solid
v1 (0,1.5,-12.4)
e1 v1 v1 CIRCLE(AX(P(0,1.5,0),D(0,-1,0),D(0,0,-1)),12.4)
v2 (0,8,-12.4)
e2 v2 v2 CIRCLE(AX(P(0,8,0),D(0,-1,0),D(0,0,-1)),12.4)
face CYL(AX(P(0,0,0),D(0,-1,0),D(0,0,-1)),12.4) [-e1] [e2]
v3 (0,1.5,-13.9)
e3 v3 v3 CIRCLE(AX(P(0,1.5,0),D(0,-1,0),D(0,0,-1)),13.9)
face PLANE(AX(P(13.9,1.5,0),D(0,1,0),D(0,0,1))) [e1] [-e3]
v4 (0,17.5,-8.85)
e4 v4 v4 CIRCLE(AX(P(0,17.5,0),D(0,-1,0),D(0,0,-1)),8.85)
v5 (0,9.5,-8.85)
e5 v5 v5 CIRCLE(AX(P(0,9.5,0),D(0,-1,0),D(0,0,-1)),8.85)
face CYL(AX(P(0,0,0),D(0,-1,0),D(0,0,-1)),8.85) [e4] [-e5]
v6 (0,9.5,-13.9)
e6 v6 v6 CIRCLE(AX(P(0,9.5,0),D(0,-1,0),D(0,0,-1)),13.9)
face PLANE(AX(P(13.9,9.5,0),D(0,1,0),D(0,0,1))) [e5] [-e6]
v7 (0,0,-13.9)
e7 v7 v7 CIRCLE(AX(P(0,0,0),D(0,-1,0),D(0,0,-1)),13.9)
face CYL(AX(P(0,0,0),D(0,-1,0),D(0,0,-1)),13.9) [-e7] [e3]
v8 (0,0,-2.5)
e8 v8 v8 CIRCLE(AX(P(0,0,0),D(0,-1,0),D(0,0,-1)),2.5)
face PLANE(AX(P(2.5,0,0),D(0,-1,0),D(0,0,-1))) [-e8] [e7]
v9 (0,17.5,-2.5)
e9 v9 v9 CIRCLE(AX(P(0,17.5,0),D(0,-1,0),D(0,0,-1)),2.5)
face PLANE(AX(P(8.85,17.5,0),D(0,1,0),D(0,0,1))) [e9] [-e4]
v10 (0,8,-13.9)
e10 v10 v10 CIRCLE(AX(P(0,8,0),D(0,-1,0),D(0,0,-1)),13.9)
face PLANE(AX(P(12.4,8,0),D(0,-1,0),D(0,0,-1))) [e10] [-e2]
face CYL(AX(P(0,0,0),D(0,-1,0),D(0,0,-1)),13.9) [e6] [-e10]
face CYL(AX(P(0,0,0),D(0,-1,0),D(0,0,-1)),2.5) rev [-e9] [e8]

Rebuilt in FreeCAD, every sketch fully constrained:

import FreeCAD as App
import Part
import Sketcher
Q = App.Units.Quantity


def add_polygon(sketch, points):
    """Adds a closed chain of lines whose ends are joined by coincident constraints."""
    first, n = sketch.GeometryCount, len(points)
    for a, b in zip(points, points[1:] + points[:1]):
        sketch.addGeometry(Part.LineSegment(App.Vector(*a, 0), App.Vector(*b, 0)), False)
    for i in range(n):
        sketch.addConstraint(Sketcher.Constraint("Coincident", first + i, 2, first + (i + 1) % n, 1))

doc = App.newDocument("Part")
body = doc.addObject("PartDesign::Body", "Body")

sketch1 = body.newObject("Sketcher::SketchObject", "Sketch")
sketch1.AttachmentSupport = (doc.getObject("XY_Plane"), [""])
sketch1.MapMode = "FlatFace"
add_polygon(sketch1, [(2.5, 0), (13.9, 0), (13.9, 1.5), (12.4, 1.5), (12.4, 8), (13.9, 8), (13.9, 9.5), (8.8, 9.5), (8.8, 17.5), (2.5, 17.5)])
sketch1.addConstraint([
    Sketcher.Constraint("Horizontal", 0),
    Sketcher.Constraint("Vertical", 1),
    Sketcher.Constraint("Horizontal", 2),
    Sketcher.Constraint("Vertical", 3),
    Sketcher.Constraint("Horizontal", 4),
    Sketcher.Constraint("Vertical", 5),
    Sketcher.Constraint("Horizontal", 6),
    Sketcher.Constraint("Vertical", 7),
    Sketcher.Constraint("Horizontal", 8),
    Sketcher.Constraint("Vertical", 9),
    Sketcher.Constraint("PointOnObject", 0, 2, -1),
    Sketcher.Constraint("Vertical", 1, 2, 4, 2),
    Sketcher.Constraint("Equal", 4, 1),
    Sketcher.Constraint("Equal", 1, 5),
    Sketcher.Constraint("DistanceY", 7, 1, 7, 2, Q("8 mm")),
    Sketcher.Constraint("DistanceX", 0, 1, 0, 2, Q("11.4 mm")),
    Sketcher.Constraint("DistanceX", 2, 2, 2, 1, Q("1.5 mm")),
    Sketcher.Constraint("DistanceY", 3, 1, 3, 2, Q("6.5 mm")),
    Sketcher.Constraint("DistanceX", 6, 2, 6, 1, Q("5.05 mm")),
    Sketcher.Constraint("DistanceX", -1, 1, 0, 2, Q("13.9 mm")),
])
revolution = body.newObject("PartDesign::Revolution", "Revolution")
revolution.Profile = sketch1
revolution.ReferenceAxis = (sketch1, ["V_Axis"])
revolution.Angle = 360

doc.recompute()
